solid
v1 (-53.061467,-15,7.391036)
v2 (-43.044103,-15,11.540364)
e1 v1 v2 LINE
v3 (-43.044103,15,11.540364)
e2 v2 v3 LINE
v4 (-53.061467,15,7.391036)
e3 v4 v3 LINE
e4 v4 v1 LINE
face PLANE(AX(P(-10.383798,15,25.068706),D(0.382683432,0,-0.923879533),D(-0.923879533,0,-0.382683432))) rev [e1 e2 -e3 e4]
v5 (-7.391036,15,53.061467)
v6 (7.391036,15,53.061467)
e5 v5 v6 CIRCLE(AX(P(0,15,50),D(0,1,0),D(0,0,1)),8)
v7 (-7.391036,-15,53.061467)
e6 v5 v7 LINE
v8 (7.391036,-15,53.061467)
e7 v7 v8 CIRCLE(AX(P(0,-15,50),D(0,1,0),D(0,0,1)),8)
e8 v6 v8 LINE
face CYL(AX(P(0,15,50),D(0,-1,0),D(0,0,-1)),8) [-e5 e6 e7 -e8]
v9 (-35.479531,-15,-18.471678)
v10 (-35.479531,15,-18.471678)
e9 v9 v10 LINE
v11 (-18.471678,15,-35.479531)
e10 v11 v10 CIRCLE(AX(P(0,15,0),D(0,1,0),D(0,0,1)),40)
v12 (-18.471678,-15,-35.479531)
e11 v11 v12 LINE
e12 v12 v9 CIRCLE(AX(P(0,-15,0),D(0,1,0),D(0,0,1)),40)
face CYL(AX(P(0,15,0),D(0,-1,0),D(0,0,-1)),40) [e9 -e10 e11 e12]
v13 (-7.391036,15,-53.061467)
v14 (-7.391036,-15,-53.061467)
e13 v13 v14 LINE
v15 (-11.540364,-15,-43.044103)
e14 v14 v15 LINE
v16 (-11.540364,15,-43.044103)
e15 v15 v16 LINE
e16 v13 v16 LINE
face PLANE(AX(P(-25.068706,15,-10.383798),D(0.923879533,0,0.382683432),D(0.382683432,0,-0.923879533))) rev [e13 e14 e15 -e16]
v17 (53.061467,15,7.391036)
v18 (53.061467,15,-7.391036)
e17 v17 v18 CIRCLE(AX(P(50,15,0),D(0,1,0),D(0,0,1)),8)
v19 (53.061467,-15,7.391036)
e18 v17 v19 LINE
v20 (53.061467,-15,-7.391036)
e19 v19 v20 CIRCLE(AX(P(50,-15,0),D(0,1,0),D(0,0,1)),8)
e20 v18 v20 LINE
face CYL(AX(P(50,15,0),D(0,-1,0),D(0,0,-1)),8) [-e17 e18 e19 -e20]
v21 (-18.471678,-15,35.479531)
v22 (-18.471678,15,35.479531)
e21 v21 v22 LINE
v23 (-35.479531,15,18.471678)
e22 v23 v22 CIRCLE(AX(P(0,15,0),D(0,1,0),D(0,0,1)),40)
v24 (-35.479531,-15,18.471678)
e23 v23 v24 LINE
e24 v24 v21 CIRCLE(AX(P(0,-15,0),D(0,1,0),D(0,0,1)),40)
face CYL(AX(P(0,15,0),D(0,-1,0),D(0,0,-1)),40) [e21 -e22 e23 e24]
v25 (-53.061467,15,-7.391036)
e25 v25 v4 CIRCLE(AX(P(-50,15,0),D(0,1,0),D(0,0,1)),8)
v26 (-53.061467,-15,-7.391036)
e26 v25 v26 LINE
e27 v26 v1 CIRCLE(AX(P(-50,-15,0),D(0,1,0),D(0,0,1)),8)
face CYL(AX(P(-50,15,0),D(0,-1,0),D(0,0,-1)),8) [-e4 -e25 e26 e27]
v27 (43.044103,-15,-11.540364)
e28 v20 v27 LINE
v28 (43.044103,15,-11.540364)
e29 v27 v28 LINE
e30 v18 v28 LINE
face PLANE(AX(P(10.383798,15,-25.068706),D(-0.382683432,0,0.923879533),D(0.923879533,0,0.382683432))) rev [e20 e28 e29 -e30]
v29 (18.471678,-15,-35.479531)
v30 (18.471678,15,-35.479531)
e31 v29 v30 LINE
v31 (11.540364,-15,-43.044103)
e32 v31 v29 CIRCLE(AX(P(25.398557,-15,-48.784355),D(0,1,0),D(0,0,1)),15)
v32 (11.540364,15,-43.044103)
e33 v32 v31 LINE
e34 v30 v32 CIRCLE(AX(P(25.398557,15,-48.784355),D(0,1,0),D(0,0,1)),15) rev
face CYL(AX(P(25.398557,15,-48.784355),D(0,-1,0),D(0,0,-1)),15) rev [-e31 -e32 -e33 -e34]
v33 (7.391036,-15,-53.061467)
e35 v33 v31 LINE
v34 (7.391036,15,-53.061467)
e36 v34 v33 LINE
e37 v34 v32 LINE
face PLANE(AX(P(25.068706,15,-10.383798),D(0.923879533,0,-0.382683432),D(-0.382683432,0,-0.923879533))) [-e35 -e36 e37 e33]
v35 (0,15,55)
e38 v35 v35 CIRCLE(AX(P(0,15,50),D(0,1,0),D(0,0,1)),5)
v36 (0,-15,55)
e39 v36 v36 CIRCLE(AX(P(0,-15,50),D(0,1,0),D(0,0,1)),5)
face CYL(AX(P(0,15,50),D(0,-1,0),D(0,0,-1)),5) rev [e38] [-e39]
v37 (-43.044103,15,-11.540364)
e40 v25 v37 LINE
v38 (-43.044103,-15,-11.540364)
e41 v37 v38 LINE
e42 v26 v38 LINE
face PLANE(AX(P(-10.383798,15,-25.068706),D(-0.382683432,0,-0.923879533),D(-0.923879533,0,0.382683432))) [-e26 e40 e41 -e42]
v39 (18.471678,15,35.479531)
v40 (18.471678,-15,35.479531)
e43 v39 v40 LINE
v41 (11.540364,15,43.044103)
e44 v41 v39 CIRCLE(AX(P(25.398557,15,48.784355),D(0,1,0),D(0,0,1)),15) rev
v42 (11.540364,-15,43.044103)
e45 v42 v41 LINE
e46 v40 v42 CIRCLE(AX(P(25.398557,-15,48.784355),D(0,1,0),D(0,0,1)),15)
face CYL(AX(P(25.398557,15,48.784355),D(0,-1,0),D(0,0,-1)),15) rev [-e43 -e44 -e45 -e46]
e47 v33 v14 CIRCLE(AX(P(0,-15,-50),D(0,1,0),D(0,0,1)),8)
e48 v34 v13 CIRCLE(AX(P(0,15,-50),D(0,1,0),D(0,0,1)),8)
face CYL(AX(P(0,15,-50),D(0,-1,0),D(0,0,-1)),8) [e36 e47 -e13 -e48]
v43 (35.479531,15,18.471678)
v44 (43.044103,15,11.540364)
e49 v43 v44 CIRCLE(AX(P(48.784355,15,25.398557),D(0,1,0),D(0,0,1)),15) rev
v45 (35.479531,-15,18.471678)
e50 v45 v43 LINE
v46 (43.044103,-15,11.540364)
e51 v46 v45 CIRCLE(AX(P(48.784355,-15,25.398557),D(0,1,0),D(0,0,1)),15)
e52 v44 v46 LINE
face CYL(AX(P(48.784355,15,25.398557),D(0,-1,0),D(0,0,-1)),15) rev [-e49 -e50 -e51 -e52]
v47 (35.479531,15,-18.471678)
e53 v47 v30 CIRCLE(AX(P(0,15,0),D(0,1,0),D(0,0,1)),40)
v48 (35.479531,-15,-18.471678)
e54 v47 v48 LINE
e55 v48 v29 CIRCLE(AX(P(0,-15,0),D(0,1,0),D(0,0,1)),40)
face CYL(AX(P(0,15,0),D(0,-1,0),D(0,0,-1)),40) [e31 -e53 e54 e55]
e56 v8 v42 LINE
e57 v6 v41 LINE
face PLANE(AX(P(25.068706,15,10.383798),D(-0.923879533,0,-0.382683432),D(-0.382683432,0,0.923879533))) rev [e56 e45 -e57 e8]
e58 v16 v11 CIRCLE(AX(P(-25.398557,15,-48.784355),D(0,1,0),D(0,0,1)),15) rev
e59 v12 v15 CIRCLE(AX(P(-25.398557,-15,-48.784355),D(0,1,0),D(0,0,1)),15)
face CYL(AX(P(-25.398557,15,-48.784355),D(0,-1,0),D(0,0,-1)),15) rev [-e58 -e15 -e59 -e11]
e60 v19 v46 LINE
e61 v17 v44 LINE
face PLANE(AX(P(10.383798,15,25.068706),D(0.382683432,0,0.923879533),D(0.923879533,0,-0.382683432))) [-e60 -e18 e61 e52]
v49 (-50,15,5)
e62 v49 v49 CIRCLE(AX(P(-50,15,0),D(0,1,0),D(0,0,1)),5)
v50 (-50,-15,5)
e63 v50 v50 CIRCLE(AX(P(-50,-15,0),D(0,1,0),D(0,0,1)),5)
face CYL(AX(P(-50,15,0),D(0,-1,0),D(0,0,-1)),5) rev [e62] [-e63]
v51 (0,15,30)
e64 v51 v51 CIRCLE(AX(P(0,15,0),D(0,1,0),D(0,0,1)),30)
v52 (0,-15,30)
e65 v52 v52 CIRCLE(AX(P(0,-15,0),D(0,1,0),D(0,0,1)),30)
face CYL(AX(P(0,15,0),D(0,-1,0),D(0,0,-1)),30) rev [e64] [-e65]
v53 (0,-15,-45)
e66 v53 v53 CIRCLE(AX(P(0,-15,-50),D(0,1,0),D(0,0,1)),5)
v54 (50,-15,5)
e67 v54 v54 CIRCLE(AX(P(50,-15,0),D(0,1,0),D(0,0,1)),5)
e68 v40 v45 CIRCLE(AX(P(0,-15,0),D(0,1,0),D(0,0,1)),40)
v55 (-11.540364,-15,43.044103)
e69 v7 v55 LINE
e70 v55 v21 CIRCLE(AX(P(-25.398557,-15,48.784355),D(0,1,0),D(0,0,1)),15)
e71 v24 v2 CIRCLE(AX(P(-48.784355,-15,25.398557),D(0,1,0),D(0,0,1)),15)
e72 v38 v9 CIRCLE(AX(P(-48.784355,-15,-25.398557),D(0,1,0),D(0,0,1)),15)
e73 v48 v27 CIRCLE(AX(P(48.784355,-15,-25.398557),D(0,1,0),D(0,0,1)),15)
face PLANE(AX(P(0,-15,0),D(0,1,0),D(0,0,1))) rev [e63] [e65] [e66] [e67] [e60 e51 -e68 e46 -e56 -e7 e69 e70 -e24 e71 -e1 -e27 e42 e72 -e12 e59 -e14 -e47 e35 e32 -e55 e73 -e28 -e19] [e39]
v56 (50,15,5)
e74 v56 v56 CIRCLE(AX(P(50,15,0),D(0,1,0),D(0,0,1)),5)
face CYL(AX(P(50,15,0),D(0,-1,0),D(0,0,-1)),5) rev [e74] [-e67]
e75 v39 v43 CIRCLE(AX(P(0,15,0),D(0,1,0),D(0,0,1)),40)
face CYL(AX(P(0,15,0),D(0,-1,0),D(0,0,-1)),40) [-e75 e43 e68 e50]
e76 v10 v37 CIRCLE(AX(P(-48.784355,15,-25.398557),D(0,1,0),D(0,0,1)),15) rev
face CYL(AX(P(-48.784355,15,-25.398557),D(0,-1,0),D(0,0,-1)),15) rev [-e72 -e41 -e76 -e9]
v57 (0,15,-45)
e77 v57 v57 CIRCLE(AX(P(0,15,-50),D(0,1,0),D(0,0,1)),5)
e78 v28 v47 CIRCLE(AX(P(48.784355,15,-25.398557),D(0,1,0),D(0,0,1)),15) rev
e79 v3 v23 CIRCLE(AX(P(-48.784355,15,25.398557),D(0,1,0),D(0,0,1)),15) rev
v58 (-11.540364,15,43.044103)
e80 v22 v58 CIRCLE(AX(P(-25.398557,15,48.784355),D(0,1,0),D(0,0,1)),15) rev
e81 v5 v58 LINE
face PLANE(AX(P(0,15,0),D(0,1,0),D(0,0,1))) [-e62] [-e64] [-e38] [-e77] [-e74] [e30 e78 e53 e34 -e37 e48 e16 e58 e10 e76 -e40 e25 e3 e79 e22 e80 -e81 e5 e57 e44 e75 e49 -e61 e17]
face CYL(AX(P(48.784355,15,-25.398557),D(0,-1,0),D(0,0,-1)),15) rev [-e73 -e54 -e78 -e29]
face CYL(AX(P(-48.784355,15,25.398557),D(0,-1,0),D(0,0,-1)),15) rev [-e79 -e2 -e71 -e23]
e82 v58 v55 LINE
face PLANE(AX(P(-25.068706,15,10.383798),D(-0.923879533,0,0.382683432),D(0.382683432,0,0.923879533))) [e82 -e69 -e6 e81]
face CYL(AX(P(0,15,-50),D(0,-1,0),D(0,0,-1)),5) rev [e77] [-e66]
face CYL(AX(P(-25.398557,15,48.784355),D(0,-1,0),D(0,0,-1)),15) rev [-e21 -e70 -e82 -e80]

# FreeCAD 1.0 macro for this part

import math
import FreeCAD as App
import Part
import Sketcher
Q = App.Units.Quantity


def edges_at(feature, points):
    """Names of the edges that pass closest to the given points."""
    edges = feature.Shape.Edges
    near = lambda p: min(range(len(edges)), key=lambda i: edges[i].distToShape(Part.Vertex(*p))[0])
    return sorted({f"Edge{near(p) + 1}" for p in points})

doc = App.newDocument("Part")
body = doc.addObject("PartDesign::Body", "Body")

# Sketch on XZ plane
sketch1 = doc.addObject("Sketcher::SketchObject", "Sketch")
body.addObject(sketch1)
sketch1.AttachmentSupport = (doc.XZ_Plane, [""])
sketch1.MapMode = "FlatFace"
sketch1.addGeometry(Part.LineSegment(App.Vector(14, -38, 0), App.Vector(7, -53, 0)), False)
sketch1.addGeometry(Part.ArcOfCircle(Part.Circle(App.Vector(0, -50, 0), App.Vector(0, 0, 1), 8), math.radians(-157), math.radians(-23)), False)
sketch1.addGeometry(Part.LineSegment(App.Vector(-7, -53, 0), App.Vector(-14, -38, 0)), False)
sketch1.addGeometry(Part.ArcOfCircle(Part.Circle(App.Vector(0, 0, 0), App.Vector(0, 0, 1), 40), math.radians(-160), math.radians(-110)), False)
sketch1.addGeometry(Part.LineSegment(App.Vector(-38, -14, 0), App.Vector(-53, -7, 0)), False)
sketch1.addGeometry(Part.ArcOfCircle(Part.Circle(App.Vector(-50, 0, 0), App.Vector(0, 0, 1), 8), math.radians(113), math.radians(247)), False)
sketch1.addGeometry(Part.LineSegment(App.Vector(-53, 7, 0), App.Vector(-38, 14, 0)), False)
sketch1.addGeometry(Part.ArcOfCircle(Part.Circle(App.Vector(0, 0, 0), App.Vector(0, 0, 1), 40), math.radians(110), math.radians(160)), False)
sketch1.addGeometry(Part.LineSegment(App.Vector(-14, 38, 0), App.Vector(-7, 53, 0)), False)
sketch1.addGeometry(Part.ArcOfCircle(Part.Circle(App.Vector(0, 50, 0), App.Vector(0, 0, 1), 8), math.radians(23), math.radians(157)), False)
sketch1.addGeometry(Part.LineSegment(App.Vector(7, 53, 0), App.Vector(14, 38, 0)), False)
sketch1.addGeometry(Part.ArcOfCircle(Part.Circle(App.Vector(0, 0, 0), App.Vector(0, 0, 1), 40), math.radians(20), math.radians(70)), False)
sketch1.addGeometry(Part.LineSegment(App.Vector(38, 14, 0), App.Vector(53, 7, 0)), False)
sketch1.addGeometry(Part.ArcOfCircle(Part.Circle(App.Vector(50, 0, 0), App.Vector(0, 0, 1), 8), math.radians(-67), math.radians(67)), False)
sketch1.addGeometry(Part.LineSegment(App.Vector(53, -7, 0), App.Vector(38, -14, 0)), False)
sketch1.addGeometry(Part.ArcOfCircle(Part.Circle(App.Vector(0, 0, 0), App.Vector(0, 0, 1), 40), math.radians(-70), math.radians(-20)), False)
sketch1.addGeometry(Part.Circle(App.Vector(0, 50, 0), App.Vector(0, 0, 1), 5), False)
sketch1.addGeometry(Part.Circle(App.Vector(-50, 0, 0), App.Vector(0, 0, 1), 5), False)
sketch1.addGeometry(Part.Circle(App.Vector(0, 0, 0), App.Vector(0, 0, 1), 30), False)
sketch1.addGeometry(Part.Circle(App.Vector(50, 0, 0), App.Vector(0, 0, 1), 5), False)
sketch1.addGeometry(Part.Circle(App.Vector(0, -50, 0), App.Vector(0, 0, 1), 5), False)
sketch1.addConstraint(Sketcher.Constraint("Tangent", 0, 2, 1, 2))
sketch1.addConstraint(Sketcher.Constraint("Tangent", 1, 1, 2, 1))
sketch1.addConstraint(Sketcher.Constraint("Coincident", 2, 2, 3, 2))
sketch1.addConstraint(Sketcher.Constraint("Coincident", 3, 1, 4, 1))
sketch1.addConstraint(Sketcher.Constraint("Tangent", 4, 2, 5, 2))
sketch1.addConstraint(Sketcher.Constraint("Tangent", 5, 1, 6, 1))
sketch1.addConstraint(Sketcher.Constraint("Coincident", 6, 2, 7, 2))
sketch1.addConstraint(Sketcher.Constraint("Coincident", 7, 1, 8, 1))
sketch1.addConstraint(Sketcher.Constraint("Tangent", 8, 2, 9, 2))
sketch1.addConstraint(Sketcher.Constraint("Tangent", 9, 1, 10, 1))
sketch1.addConstraint(Sketcher.Constraint("Coincident", 10, 2, 11, 2))
sketch1.addConstraint(Sketcher.Constraint("Coincident", 11, 1, 12, 1))
sketch1.addConstraint(Sketcher.Constraint("Tangent", 12, 2, 13, 2))
sketch1.addConstraint(Sketcher.Constraint("Tangent", 13, 1, 14, 1))
sketch1.addConstraint(Sketcher.Constraint("Coincident", 14, 2, 15, 2))
sketch1.addConstraint(Sketcher.Constraint("Coincident", 15, 1, 0, 1))
sketch1.addConstraint(Sketcher.Constraint("Coincident", 3, 3, -1, 1))
sketch1.addConstraint(Sketcher.Constraint("Coincident", 7, 3, -1, 1))
sketch1.addConstraint(Sketcher.Constraint("Coincident", 11, 3, -1, 1))
sketch1.addConstraint(Sketcher.Constraint("Coincident", 15, 3, -1, 1))
sketch1.addConstraint(Sketcher.Constraint("Coincident", 18, 3, -1, 1))
sketch1.addConstraint(Sketcher.Constraint("Coincident", 16, 3, 9, 3))
sketch1.addConstraint(Sketcher.Constraint("Coincident", 17, 3, 5, 3))
sketch1.addConstraint(Sketcher.Constraint("Coincident", 19, 3, 13, 3))
sketch1.addConstraint(Sketcher.Constraint("Coincident", 20, 3, 1, 3))
sketch1.addConstraint(Sketcher.Constraint("Equal", 1, 5))
sketch1.addConstraint(Sketcher.Constraint("Equal", 3, 7))
sketch1.addConstraint(Sketcher.Constraint("Equal", 5, 9))
sketch1.addConstraint(Sketcher.Constraint("Equal", 7, 11))
sketch1.addConstraint(Sketcher.Constraint("Equal", 9, 13))
sketch1.addConstraint(Sketcher.Constraint("Equal", 11, 15))
sketch1.addConstraint(Sketcher.Constraint("Equal", 16, 17))
sketch1.addConstraint(Sketcher.Constraint("Equal", 17, 19))
sketch1.addConstraint(Sketcher.Constraint("Equal", 19, 20))
sketch1.addConstraint(Sketcher.Constraint("Symmetric", 1, 3, 9, 3, -1, 1))
sketch1.addConstraint(Sketcher.Constraint("Symmetric", 5, 3, 13, 3, -1, 1))
sketch1.addConstraint(Sketcher.Constraint("Symmetric", 0, 2, 1, 1, -2))
sketch1.addConstraint(Sketcher.Constraint("Symmetric", 5, 1, 12, 2, -2))
sketch1.addConstraint(Sketcher.Constraint("Perpendicular", 0, 4))
sketch1.addConstraint(Sketcher.Constraint("Perpendicular", 2, 6))
sketch1.addConstraint(Sketcher.Constraint("Perpendicular", 4, 8))
sketch1.addConstraint(Sketcher.Constraint("Perpendicular", 6, 10))
sketch1.addConstraint(Sketcher.Constraint("Perpendicular", 10, 14))
sketch1.addConstraint(Sketcher.Constraint("Equal", 2, 4))
sketch1.addConstraint(Sketcher.Constraint("Diameter", 16, 10.0))
sketch1.addConstraint(Sketcher.Constraint("Diameter", 18, 60.0))
sketch1.addConstraint(Sketcher.Constraint("Radius", 1, 8.0))
sketch1.addConstraint(Sketcher.Constraint("Radius", 3, 40.0))
sketch1.addConstraint(Sketcher.Constraint("DistanceY", 1, 3, -1, 1, 50.0))
sketch1.addConstraint(Sketcher.Constraint("Angle", 0, Q("-112.5 deg")))
pad1 = doc.addObject("PartDesign::Pad", "Pad")
body.addObject(pad1)
pad1.Profile = sketch1
pad1.Length = 30
pad1.Midplane = True
doc.recompute()

fillet = doc.addObject("PartDesign::Fillet", "Fillet")
body.addObject(fillet)
fillet.Base = (pad1, edges_at(pad1, [
    (-37.536, 0, -13.822),
    (-13.822, 0, -37.536),
    (13.822, 0, -37.536),
    (37.536, 0, -13.822),
    (37.536, 0, 13.822),
    (13.822, 0, 37.536),
    (-13.822, 0, 37.536),
    (-37.536, 0, 13.822),
]))
fillet.Radius = 15

doc.recompute()
